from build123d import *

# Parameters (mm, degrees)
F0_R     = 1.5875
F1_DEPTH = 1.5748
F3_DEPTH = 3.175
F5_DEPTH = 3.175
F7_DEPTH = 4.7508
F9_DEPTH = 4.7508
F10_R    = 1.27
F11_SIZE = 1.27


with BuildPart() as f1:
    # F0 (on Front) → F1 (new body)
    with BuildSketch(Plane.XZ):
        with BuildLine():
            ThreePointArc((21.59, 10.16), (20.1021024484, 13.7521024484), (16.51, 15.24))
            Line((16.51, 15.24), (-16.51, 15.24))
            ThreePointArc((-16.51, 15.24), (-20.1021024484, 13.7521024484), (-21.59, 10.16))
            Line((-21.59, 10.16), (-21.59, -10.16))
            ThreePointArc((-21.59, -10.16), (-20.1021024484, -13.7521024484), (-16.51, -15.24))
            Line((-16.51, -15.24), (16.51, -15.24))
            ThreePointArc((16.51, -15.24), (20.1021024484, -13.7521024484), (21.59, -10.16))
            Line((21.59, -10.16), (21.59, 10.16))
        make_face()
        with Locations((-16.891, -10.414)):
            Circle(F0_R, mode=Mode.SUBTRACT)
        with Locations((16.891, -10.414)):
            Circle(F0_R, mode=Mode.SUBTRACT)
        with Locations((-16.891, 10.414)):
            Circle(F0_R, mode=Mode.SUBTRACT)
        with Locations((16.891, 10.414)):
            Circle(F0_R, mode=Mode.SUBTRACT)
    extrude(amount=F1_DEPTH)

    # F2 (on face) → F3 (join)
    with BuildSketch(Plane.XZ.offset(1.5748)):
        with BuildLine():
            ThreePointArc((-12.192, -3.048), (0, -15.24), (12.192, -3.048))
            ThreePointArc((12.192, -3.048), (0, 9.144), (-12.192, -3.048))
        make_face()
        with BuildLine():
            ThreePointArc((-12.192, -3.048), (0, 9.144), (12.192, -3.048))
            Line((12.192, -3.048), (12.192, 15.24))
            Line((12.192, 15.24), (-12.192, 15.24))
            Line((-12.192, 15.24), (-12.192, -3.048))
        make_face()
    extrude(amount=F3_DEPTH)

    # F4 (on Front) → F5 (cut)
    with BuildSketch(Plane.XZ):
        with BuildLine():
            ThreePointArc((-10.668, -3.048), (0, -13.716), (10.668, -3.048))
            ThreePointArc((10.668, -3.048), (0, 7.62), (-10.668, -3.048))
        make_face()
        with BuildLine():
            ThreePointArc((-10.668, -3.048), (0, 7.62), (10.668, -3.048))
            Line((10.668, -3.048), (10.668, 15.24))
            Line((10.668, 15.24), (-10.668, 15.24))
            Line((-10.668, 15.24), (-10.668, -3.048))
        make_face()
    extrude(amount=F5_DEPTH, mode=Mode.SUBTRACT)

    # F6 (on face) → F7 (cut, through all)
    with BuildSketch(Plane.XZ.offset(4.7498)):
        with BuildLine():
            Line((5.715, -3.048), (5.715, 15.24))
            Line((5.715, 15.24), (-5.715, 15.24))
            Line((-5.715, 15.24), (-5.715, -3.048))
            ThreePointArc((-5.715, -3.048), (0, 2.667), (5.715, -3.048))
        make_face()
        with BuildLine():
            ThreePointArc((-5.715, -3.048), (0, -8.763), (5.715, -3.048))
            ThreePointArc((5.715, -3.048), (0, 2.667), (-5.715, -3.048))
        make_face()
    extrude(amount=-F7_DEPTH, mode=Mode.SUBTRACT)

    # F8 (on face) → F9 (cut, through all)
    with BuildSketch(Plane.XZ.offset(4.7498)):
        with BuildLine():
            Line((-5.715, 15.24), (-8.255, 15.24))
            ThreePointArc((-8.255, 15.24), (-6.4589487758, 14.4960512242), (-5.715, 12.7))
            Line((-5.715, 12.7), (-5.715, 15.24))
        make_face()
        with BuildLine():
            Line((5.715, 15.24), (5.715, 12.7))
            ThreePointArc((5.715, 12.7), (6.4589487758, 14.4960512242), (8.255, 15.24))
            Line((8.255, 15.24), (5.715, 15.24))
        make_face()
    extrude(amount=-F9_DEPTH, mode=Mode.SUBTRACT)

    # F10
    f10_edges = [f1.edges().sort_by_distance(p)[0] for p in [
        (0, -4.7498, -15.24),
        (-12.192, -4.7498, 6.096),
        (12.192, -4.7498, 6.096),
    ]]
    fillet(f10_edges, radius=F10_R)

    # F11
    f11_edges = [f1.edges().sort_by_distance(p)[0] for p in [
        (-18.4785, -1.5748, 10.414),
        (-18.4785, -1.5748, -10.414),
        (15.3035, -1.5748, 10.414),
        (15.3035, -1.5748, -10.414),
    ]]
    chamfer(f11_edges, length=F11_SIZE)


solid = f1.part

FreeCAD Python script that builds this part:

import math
import FreeCAD as App
import Part
import Sketcher
Q = App.Units.Quantity


def edges_at(feature, points):
    """Names of the edges that pass closest to the given points."""
    edges = feature.Shape.Edges
    near = lambda p: min(range(len(edges)), key=lambda i: edges[i].distToShape(Part.Vertex(*p))[0])
    return sorted({f"Edge{near(p) + 1}" for p in points})

doc = App.newDocument("Part")
params = doc.addObject("Spreadsheet::Sheet", "Params")
for row, (alias, value) in enumerate([
    ("sketch1_radius", "0.2 in"),
    ("sketch1_diameter", "0.125 in"),
    ("sketch1_width", "1.3 in"),
    ("sketch1_height", "0.8 in"),
    ("pad1_length", "0.062 in"),
    ("sketch2_radius", "0.48 in"),
    ("sketch2_height", "0.72 in"),
    ("pad2_length", "0.125 in"),
    ("sketch3_radius", "0.42 in"),
    ("sketch3_height", "0.72 in"),
    ("pocket1_length", "0.125 in"),
    ("sketch4_radius", "0.225 in"),
    ("sketch4_height", "0.72 in"),
    ("sketch5_radius", "0.1 in"),
    ("fillet_radius", "0.05 in"),
    ("chamfer_size", "0.05 in"),
], start=1):
    params.set(f"A{row}", alias)
    params.set(f"B{row}", "=" + value)
    params.setAlias(f"B{row}", alias)

body = doc.addObject("PartDesign::Body", "Body")

# Sketch on XZ plane
sketch1 = body.newObject("Sketcher::SketchObject", "Sketch")
sketch1.AttachmentSupport = (doc.getObject("XZ_Plane"), [""])
sketch1.MapMode = "FlatFace"
sketch1.addGeometry(Part.ArcOfCircle(Part.Circle(App.Vector(16.51, 10.16, 0), App.Vector(0, 0, 1), 5.08), math.radians(0), math.radians(90)), False)
sketch1.addGeometry(Part.LineSegment(App.Vector(16.51, 15.24, 0), App.Vector(-16.51, 15.24, 0)), False)
sketch1.addGeometry(Part.ArcOfCircle(Part.Circle(App.Vector(-16.51, 10.16, 0), App.Vector(0, 0, 1), 5.08), math.radians(90), math.radians(180)), False)
sketch1.addGeometry(Part.LineSegment(App.Vector(-21.59, 10.16, 0), App.Vector(-21.59, -10.16, 0)), False)
sketch1.addGeometry(Part.ArcOfCircle(Part.Circle(App.Vector(-16.51, -10.16, 0), App.Vector(0, 0, 1), 5.08), math.radians(180), math.radians(270)), False)
sketch1.addGeometry(Part.LineSegment(App.Vector(-16.51, -15.24, 0), App.Vector(16.51, -15.24, 0)), False)
sketch1.addGeometry(Part.ArcOfCircle(Part.Circle(App.Vector(16.51, -10.16, 0), App.Vector(0, 0, 1), 5.08), math.radians(-90), math.radians(0)), False)
sketch1.addGeometry(Part.LineSegment(App.Vector(21.59, -10.16, 0), App.Vector(21.59, 10.16, 0)), False)
sketch1.addGeometry(Part.Circle(App.Vector(-16.891, -10.414, 0), App.Vector(0, 0, 1), 1.5875), False)
sketch1.addGeometry(Part.Circle(App.Vector(16.891, -10.414, 0), App.Vector(0, 0, 1), 1.5875), False)
sketch1.addGeometry(Part.Circle(App.Vector(-16.891, 10.414, 0), App.Vector(0, 0, 1), 1.5875), False)
sketch1.addGeometry(Part.Circle(App.Vector(16.891, 10.414, 0), App.Vector(0, 0, 1), 1.5875), False)
sketch1.addConstraint(Sketcher.Constraint("Tangent", 0, 2, 1, 1))
sketch1.addConstraint(Sketcher.Constraint("Tangent", 1, 2, 2, 1))
sketch1.addConstraint(Sketcher.Constraint("Tangent", 2, 2, 3, 1))
sketch1.addConstraint(Sketcher.Constraint("Tangent", 3, 2, 4, 1))
sketch1.addConstraint(Sketcher.Constraint("Tangent", 4, 2, 5, 1))
sketch1.addConstraint(Sketcher.Constraint("Tangent", 5, 2, 6, 1))
sketch1.addConstraint(Sketcher.Constraint("Tangent", 6, 2, 7, 1))
sketch1.addConstraint(Sketcher.Constraint("Tangent", 7, 2, 0, 1))
sketch1.addConstraint(Sketcher.Constraint("Horizontal", 1))
sketch1.addConstraint(Sketcher.Constraint("Vertical", 3))
sketch1.addConstraint(Sketcher.Constraint("Horizontal", 5))
sketch1.addConstraint(Sketcher.Constraint("Vertical", 7))
sketch1.addConstraint(Sketcher.Constraint("Equal", 0, 2))
sketch1.addConstraint(Sketcher.Constraint("Equal", 2, 4))
sketch1.addConstraint(Sketcher.Constraint("Equal", 4, 6))
sketch1.addConstraint(Sketcher.Constraint("Equal", 8, 9))
sketch1.addConstraint(Sketcher.Constraint("Equal", 9, 10))
sketch1.addConstraint(Sketcher.Constraint("Equal", 10, 11))
sketch1.addConstraint(Sketcher.Constraint("Symmetric", 0, 3, 4, 3, -1, 1))
sketch1.addConstraint(Sketcher.Constraint("Symmetric", 9, 3, 10, 3, -1, 1))
sketch1.addConstraint(Sketcher.Constraint("Symmetric", 8, 3, 11, 3, -1, 1))
sketch1.addConstraint(Sketcher.Constraint("Symmetric", 8, 3, 9, 3, -2))
sketch1.addConstraint(Sketcher.Constraint("Radius", 0, Q("0.2 in")))
sketch1.addConstraint(Sketcher.Constraint("Diameter", 8, Q("0.125 in")))
sketch1.addConstraint(Sketcher.Constraint("DistanceX", 1, 2, 1, 1, Q("1.3 in")))
sketch1.addConstraint(Sketcher.Constraint("DistanceY", 3, 2, 3, 1, Q("0.8 in")))
sketch1.addConstraint(Sketcher.Constraint("DistanceY", 8, 3, -1, 1, Q("0.41 in")))
sketch1.addConstraint(Sketcher.Constraint("DistanceX", 8, 3, 9, 3, Q("1.33 in")))
sketch1.setExpression("Constraints[22]", "Params.sketch1_radius")
sketch1.setExpression("Constraints[23]", "Params.sketch1_diameter")
sketch1.setExpression("Constraints[24]", "Params.sketch1_width")
sketch1.setExpression("Constraints[25]", "Params.sketch1_height")
pad1 = body.newObject("PartDesign::Pad", "Pad")
pad1.Profile = sketch1
pad1.setExpression("Length", "Params.pad1_length")

# Sketch on XZ plane
sketch2 = body.newObject("Sketcher::SketchObject", "Sketch001")
sketch2.AttachmentSupport = (doc.getObject("XZ_Plane"), [""])
sketch2.MapMode = "FlatFace"
sketch2.AttachmentOffset = App.Placement(App.Vector(0, 0, 0.062 * 25.4), App.Rotation())
sketch2.addGeometry(Part.ArcOfCircle(Part.Circle(App.Vector(0, -3.048, 0), App.Vector(0, 0, 1), 12.192), math.radians(180), math.radians(360)), False)
sketch2.addGeometry(Part.LineSegment(App.Vector(12.192, -3.048, 0), App.Vector(12.192, 15.24, 0)), False)
sketch2.addGeometry(Part.LineSegment(App.Vector(12.192, 15.24, 0), App.Vector(-12.192, 15.24, 0)), False)
sketch2.addGeometry(Part.LineSegment(App.Vector(-12.192, 15.24, 0), App.Vector(-12.192, -3.048, 0)), False)
sketch2.addConstraint(Sketcher.Constraint("Tangent", 0, 2, 1, 1))
sketch2.addConstraint(Sketcher.Constraint("Coincident", 1, 2, 2, 1))
sketch2.addConstraint(Sketcher.Constraint("Coincident", 2, 2, 3, 1))
sketch2.addConstraint(Sketcher.Constraint("Tangent", 3, 2, 0, 1))
sketch2.addConstraint(Sketcher.Constraint("Vertical", 1))
sketch2.addConstraint(Sketcher.Constraint("Horizontal", 2))
sketch2.addConstraint(Sketcher.Constraint("Vertical", 3))
sketch2.addConstraint(Sketcher.Constraint("PointOnObject", 0, 3, -2))
sketch2.addConstraint(Sketcher.Constraint("Radius", 0, Q("0.48 in")))
sketch2.addConstraint(Sketcher.Constraint("DistanceY", 1, 1, 1, 2, Q("0.72 in")))
sketch2.addConstraint(Sketcher.Constraint("DistanceY", -1, 1, 1, 2, Q("0.6 in")))
sketch2.setExpression("Constraints[8]", "Params.sketch2_radius")
sketch2.setExpression("Constraints[9]", "Params.sketch2_height")
pad2 = body.newObject("PartDesign::Pad", "Pad001")
pad2.Profile = sketch2
pad2.setExpression("Length", "Params.pad2_length")

# Sketch on XZ plane
sketch3 = body.newObject("Sketcher::SketchObject", "Sketch002")
sketch3.AttachmentSupport = (doc.getObject("XZ_Plane"), [""])
sketch3.MapMode = "FlatFace"
sketch3.addGeometry(Part.ArcOfCircle(Part.Circle(App.Vector(0, -3.048, 0), App.Vector(0, 0, 1), 10.668), math.radians(180), math.radians(360)), False)
sketch3.addGeometry(Part.LineSegment(App.Vector(10.668, -3.048, 0), App.Vector(10.668, 15.24, 0)), False)
sketch3.addGeometry(Part.LineSegment(App.Vector(10.668, 15.24, 0), App.Vector(-10.668, 15.24, 0)), False)
sketch3.addGeometry(Part.LineSegment(App.Vector(-10.668, 15.24, 0), App.Vector(-10.668, -3.048, 0)), False)
sketch3.addConstraint(Sketcher.Constraint("Tangent", 0, 2, 1, 1))
sketch3.addConstraint(Sketcher.Constraint("Coincident", 1, 2, 2, 1))
sketch3.addConstraint(Sketcher.Constraint("Coincident", 2, 2, 3, 1))
sketch3.addConstraint(Sketcher.Constraint("Tangent", 3, 2, 0, 1))
sketch3.addConstraint(Sketcher.Constraint("Vertical", 1))
sketch3.addConstraint(Sketcher.Constraint("Horizontal", 2))
sketch3.addConstraint(Sketcher.Constraint("Vertical", 3))
sketch3.addConstraint(Sketcher.Constraint("PointOnObject", 0, 3, -2))
sketch3.addConstraint(Sketcher.Constraint("Radius", 0, Q("0.42 in")))
sketch3.addConstraint(Sketcher.Constraint("DistanceY", 1, 1, 1, 2, Q("0.72 in")))
sketch3.addConstraint(Sketcher.Constraint("DistanceY", -1, 1, 1, 2, Q("0.6 in")))
sketch3.setExpression("Constraints[8]", "Params.sketch3_radius")
sketch3.setExpression("Constraints[9]", "Params.sketch3_height")
pocket1 = body.newObject("PartDesign::Pocket", "Pocket")
pocket1.Profile = sketch3
pocket1.setExpression("Length", "Params.pocket1_length")
pocket1.Reversed = True

# Sketch on XZ plane
sketch4 = body.newObject("Sketcher::SketchObject", "Sketch003")
sketch4.AttachmentSupport = (doc.getObject("XZ_Plane"), [""])
sketch4.MapMode = "FlatFace"
sketch4.AttachmentOffset = App.Placement(App.Vector(0, 0, 0.187 * 25.4), App.Rotation())
sketch4.addGeometry(Part.LineSegment(App.Vector(5.715, -3.048, 0), App.Vector(5.715, 15.24, 0)), False)
sketch4.addGeometry(Part.LineSegment(App.Vector(5.715, 15.24, 0), App.Vector(-5.715, 15.24, 0)), False)
sketch4.addGeometry(Part.LineSegment(App.Vector(-5.715, 15.24, 0), App.Vector(-5.715, -3.048, 0)), False)
sketch4.addGeometry(Part.ArcOfCircle(Part.Circle(App.Vector(0, -3.048, 0), App.Vector(0, 0, 1), 5.715), math.radians(180), math.radians(360)), False)
sketch4.addConstraint(Sketcher.Constraint("Coincident", 0, 2, 1, 1))
sketch4.addConstraint(Sketcher.Constraint("Coincident", 1, 2, 2, 1))
sketch4.addConstraint(Sketcher.Constraint("Tangent", 2, 2, 3, 1))
sketch4.addConstraint(Sketcher.Constraint("Tangent", 3, 2, 0, 1))
sketch4.addConstraint(Sketcher.Constraint("Vertical", 0))
sketch4.addConstraint(Sketcher.Constraint("Horizontal", 1))
sketch4.addConstraint(Sketcher.Constraint("Vertical", 2))
sketch4.addConstraint(Sketcher.Constraint("PointOnObject", 3, 3, -2))
sketch4.addConstraint(Sketcher.Constraint("Radius", 3, Q("0.225 in")))
sketch4.addConstraint(Sketcher.Constraint("DistanceY", 0, 1, 0, 2, Q("0.72 in")))
sketch4.addConstraint(Sketcher.Constraint("DistanceY", -1, 1, 0, 2, Q("0.6 in")))
sketch4.setExpression("Constraints[8]", "Params.sketch4_radius")
sketch4.setExpression("Constraints[9]", "Params.sketch4_height")
pocket2 = body.newObject("PartDesign::Pocket", "Pocket001")
pocket2.Profile = sketch4
pocket2.Type = "ThroughAll"

# Sketch on XZ plane
sketch5 = body.newObject("Sketcher::SketchObject", "Sketch004")
sketch5.AttachmentSupport = (doc.getObject("XZ_Plane"), [""])
sketch5.MapMode = "FlatFace"
sketch5.AttachmentOffset = App.Placement(App.Vector(0, 0, 0.187 * 25.4), App.Rotation())
sketch5.addGeometry(Part.LineSegment(App.Vector(-5.715, 15.24, 0), App.Vector(-8.255, 15.24, 0)), False)
sketch5.addGeometry(Part.ArcOfCircle(Part.Circle(App.Vector(-8.255, 12.7, 0), App.Vector(0, 0, 1), 2.54), math.radians(0), math.radians(90)), False)
sketch5.addGeometry(Part.LineSegment(App.Vector(-5.715, 12.7, 0), App.Vector(-5.715, 15.24, 0)), False)
sketch5.addGeometry(Part.LineSegment(App.Vector(5.715, 15.24, 0), App.Vector(5.715, 12.7, 0)), False)
sketch5.addGeometry(Part.ArcOfCircle(Part.Circle(App.Vector(8.255, 12.7, 0), App.Vector(0, 0, 1), 2.54), math.radians(90), math.radians(180)), False)
sketch5.addGeometry(Part.LineSegment(App.Vector(8.255, 15.24, 0), App.Vector(5.715, 15.24, 0)), False)
sketch5.addConstraint(Sketcher.Constraint("Tangent", 0, 2, 1, 2))
sketch5.addConstraint(Sketcher.Constraint("Tangent", 1, 1, 2, 1))
sketch5.addConstraint(Sketcher.Constraint("Coincident", 2, 2, 0, 1))
sketch5.addConstraint(Sketcher.Constraint("Tangent", 3, 2, 4, 2))
sketch5.addConstraint(Sketcher.Constraint("Tangent", 4, 1, 5, 1))
sketch5.addConstraint(Sketcher.Constraint("Coincident", 5, 2, 3, 1))
sketch5.addConstraint(Sketcher.Constraint("Horizontal", 0))
sketch5.addConstraint(Sketcher.Constraint("Vertical", 2))
sketch5.addConstraint(Sketcher.Constraint("Vertical", 3))
sketch5.addConstraint(Sketcher.Constraint("Horizontal", 5))
sketch5.addConstraint(Sketcher.Constraint("Equal", 1, 4))
sketch5.addConstraint(Sketcher.Constraint("Symmetric", 1, 3, 4, 3, -2))
sketch5.addConstraint(Sketcher.Constraint("Radius", 1, Q("0.1 in")))
sketch5.addConstraint(Sketcher.Constraint("DistanceY", -1, 1, 1, 3, Q("0.5 in")))
sketch5.addConstraint(Sketcher.Constraint("DistanceX", 1, 3, 4, 3, Q("0.65 in")))
sketch5.setExpression("Constraints[12]", "Params.sketch5_radius")
pocket3 = body.newObject("PartDesign::Pocket", "Pocket002")
pocket3.Profile = sketch5
pocket3.Type = "ThroughAll"
doc.recompute()

fillet = body.newObject("PartDesign::Fillet", "Fillet")
fillet.Base = (pocket3, edges_at(pocket3, [(0, -4.75, -15.24), (-12.192, -4.75, 6.096), (12.192, -4.75, 6.096)]))
fillet.setExpression("Radius", "Params.fillet_radius")
doc.recompute()

chamfer = body.newObject("PartDesign::Chamfer", "Chamfer")
chamfer.Base = (fillet, edges_at(fillet, [
    (-18.479, -1.575, 10.414),
    (-18.479, -1.575, -10.414),
    (15.303, -1.575, 10.414),
    (15.303, -1.575, -10.414),
]))
chamfer.setExpression("Size", "Params.chamfer_size")

doc.recompute()
